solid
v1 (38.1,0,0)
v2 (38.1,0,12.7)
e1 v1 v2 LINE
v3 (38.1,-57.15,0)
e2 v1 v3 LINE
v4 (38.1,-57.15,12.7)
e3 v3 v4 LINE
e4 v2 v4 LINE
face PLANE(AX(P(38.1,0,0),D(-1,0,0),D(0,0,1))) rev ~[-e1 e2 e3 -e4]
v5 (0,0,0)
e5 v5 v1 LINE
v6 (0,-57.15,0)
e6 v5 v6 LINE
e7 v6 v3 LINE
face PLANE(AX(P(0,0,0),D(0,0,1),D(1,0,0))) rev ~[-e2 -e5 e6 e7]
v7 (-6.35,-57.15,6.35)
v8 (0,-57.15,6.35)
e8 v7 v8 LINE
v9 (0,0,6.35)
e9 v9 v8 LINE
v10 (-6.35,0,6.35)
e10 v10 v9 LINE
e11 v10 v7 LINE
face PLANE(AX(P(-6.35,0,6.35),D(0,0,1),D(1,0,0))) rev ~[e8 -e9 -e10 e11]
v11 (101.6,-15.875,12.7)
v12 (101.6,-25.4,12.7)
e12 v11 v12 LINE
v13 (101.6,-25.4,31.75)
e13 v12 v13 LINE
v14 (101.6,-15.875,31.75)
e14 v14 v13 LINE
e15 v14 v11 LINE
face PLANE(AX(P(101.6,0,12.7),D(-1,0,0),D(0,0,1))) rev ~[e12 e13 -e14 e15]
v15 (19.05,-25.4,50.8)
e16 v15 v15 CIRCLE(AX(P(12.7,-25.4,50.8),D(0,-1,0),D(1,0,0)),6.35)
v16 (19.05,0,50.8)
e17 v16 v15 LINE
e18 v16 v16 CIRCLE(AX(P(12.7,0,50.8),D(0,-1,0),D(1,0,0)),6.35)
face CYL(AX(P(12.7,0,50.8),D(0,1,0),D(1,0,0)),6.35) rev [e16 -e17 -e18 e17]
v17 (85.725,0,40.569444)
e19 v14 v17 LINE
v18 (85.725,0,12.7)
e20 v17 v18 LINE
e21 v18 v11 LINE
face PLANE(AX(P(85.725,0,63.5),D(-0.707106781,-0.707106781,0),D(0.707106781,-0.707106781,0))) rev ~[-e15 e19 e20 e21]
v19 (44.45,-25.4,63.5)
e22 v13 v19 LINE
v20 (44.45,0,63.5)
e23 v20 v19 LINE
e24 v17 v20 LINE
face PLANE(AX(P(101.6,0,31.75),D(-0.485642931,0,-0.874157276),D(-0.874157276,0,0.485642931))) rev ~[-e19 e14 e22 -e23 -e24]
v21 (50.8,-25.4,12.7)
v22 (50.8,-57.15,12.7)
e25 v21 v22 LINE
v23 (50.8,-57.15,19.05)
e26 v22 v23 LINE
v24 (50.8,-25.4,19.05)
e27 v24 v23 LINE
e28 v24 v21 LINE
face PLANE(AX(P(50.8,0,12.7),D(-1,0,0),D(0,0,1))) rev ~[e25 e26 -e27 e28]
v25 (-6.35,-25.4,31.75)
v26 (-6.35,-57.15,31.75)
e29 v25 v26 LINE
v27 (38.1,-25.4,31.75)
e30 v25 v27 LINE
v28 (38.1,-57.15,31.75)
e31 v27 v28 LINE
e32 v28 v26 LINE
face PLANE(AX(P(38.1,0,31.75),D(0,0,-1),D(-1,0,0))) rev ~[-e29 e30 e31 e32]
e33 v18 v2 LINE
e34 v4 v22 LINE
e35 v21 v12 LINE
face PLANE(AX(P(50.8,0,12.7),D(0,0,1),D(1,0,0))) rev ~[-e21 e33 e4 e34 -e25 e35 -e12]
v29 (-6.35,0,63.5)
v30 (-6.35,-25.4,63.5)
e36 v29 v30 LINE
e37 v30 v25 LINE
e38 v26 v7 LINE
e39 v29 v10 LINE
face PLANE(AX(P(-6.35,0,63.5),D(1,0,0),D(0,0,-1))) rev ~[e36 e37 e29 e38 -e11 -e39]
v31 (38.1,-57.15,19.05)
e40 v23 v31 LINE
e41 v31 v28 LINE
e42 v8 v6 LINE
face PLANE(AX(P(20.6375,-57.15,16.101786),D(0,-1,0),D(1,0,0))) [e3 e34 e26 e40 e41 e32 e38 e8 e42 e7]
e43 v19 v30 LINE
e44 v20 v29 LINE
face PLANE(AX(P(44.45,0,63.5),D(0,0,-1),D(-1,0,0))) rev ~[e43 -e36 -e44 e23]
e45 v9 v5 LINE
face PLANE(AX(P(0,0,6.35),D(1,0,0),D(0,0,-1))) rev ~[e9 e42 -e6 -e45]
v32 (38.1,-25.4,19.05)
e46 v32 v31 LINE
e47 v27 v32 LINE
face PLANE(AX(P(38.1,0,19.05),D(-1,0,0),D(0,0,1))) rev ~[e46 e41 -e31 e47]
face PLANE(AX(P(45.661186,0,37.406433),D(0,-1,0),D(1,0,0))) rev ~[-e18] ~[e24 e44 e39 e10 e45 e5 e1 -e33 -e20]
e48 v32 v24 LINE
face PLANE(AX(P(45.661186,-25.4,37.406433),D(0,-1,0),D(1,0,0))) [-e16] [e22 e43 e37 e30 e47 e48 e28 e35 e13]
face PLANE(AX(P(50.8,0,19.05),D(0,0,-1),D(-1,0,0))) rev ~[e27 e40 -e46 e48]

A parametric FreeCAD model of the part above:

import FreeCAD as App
import Part
import Sketcher
from FreeCAD import Vector
Q = App.Units.Quantity


def add_polygon(sketch, points):
    """Adds a closed chain of lines whose ends are joined by coincident constraints."""
    first, n = sketch.GeometryCount, len(points)
    for a, b in zip(points, points[1:] + points[:1]):
        sketch.addGeometry(Part.LineSegment(App.Vector(*a, 0), App.Vector(*b, 0)), False)
    for i in range(n):
        sketch.addConstraint(Sketcher.Constraint("Coincident", first + i, 2, first + (i + 1) % n, 1))

doc = App.newDocument("Part")
body = doc.addObject("PartDesign::Body", "Body")

sketch1 = body.newObject("Sketcher::SketchObject", "Sketch")
sketch1.AttachmentSupport = (doc.getObject("XZ_Plane"), [""])
sketch1.MapMode = "FlatFace"
add_polygon(sketch1, [(0, 6), (0, 0), (38, 0), (38, 13), (51, 13), (51, 19), (38, 19), (38, 32), (-6, 32), (-6, 6)])
sketch1.addConstraint(Sketcher.Constraint("Vertical", 0))
sketch1.addConstraint(Sketcher.Constraint("Horizontal", 1))
sketch1.addConstraint(Sketcher.Constraint("Vertical", 2))
sketch1.addConstraint(Sketcher.Constraint("Horizontal", 3))
sketch1.addConstraint(Sketcher.Constraint("Vertical", 4))
sketch1.addConstraint(Sketcher.Constraint("Horizontal", 5))
sketch1.addConstraint(Sketcher.Constraint("Vertical", 6))
sketch1.addConstraint(Sketcher.Constraint("Horizontal", 7))
sketch1.addConstraint(Sketcher.Constraint("Vertical", 8))
sketch1.addConstraint(Sketcher.Constraint("Horizontal", 9))
sketch1.addConstraint(Sketcher.Constraint("Coincident", 0, 2, -1, 1))
sketch1.addConstraint(Sketcher.Constraint("Vertical", 2, 2, 5, 2))
sketch1.addConstraint(Sketcher.Constraint("Equal", 9, 0))
sketch1.addConstraint(Sketcher.Constraint("Equal", 5, 2))
sketch1.addConstraint(Sketcher.Constraint("Equal", 0, 4))
sketch1.addConstraint(Sketcher.Constraint("Equal", 2, 6))
sketch1.addConstraint(Sketcher.Constraint("DistanceY", 8, 2, 8, 1, Q("1 in")))
sketch1.addConstraint(Sketcher.Constraint("DistanceX", 1, 1, 1, 2, Q("1.5 in")))
sketch1.addConstraint(Sketcher.Constraint("DistanceX", 7, 2, 7, 1, Q("1.75 in")))
pad1 = body.newObject("PartDesign::Pad", "Pad")
pad1.Profile = sketch1
pad1.Length = Q("2.25 in")

sketch2 = body.newObject("Sketcher::SketchObject", "Sketch001")
sketch2.AttachmentSupport = (doc.getObject("XZ_Plane"), [""])
sketch2.MapMode = "FlatFace"
add_polygon(sketch2, [(-6, 64), (-6, 32), (38, 32), (38, 19), (51, 19), (51, 13), (102, 13), (102, 32), (44, 64)])
sketch2.addGeometry(Part.Circle(Vector(13, 51, 0), Vector(0, 0, 1), 6), False)
sketch2.addConstraint(Sketcher.Constraint("Vertical", 0))
sketch2.addConstraint(Sketcher.Constraint("Horizontal", 1))
sketch2.addConstraint(Sketcher.Constraint("Vertical", 2))
sketch2.addConstraint(Sketcher.Constraint("Horizontal", 3))
sketch2.addConstraint(Sketcher.Constraint("Vertical", 4))
sketch2.addConstraint(Sketcher.Constraint("Horizontal", 5))
sketch2.addConstraint(Sketcher.Constraint("Vertical", 6))
sketch2.addConstraint(Sketcher.Constraint("Horizontal", 8))
sketch2.addConstraint(Sketcher.Constraint("Horizontal", 1, 2, 6, 2))
sketch2.addConstraint(Sketcher.Constraint("Equal", 5, 8))
sketch2.addConstraint(Sketcher.Constraint("Equal", 3, 2))
sketch2.addConstraint(Sketcher.Constraint("Diameter", 9, Q("0.5 in")))
sketch2.addConstraint(Sketcher.Constraint("DistanceX", 5, 1, 5, 2, Q("2 in")))
sketch2.addConstraint(Sketcher.Constraint("DistanceX", 3, 1, 3, 2, Q("0.5 in")))
sketch2.addConstraint(Sketcher.Constraint("DistanceY", -1, 1, 9, 3, Q("2 in")))
sketch2.addConstraint(Sketcher.Constraint("DistanceX", -1, 1, 3, 2, Q("2 in")))
sketch2.addConstraint(Sketcher.Constraint("DistanceX", 9, 3, 1, 2, Q("1 in")))
sketch2.addConstraint(Sketcher.Constraint("DistanceY", 4, 2, 7, 2, Q("2 in")))
sketch2.addConstraint(Sketcher.Constraint("DistanceX", 1, 1, 1, 2, Q("1.75 in")))
sketch2.addConstraint(Sketcher.Constraint("DistanceY", 0, 2, 0, 1, Q("1.25 in")))
sketch2.addConstraint(Sketcher.Constraint("DistanceY", -1, 1, 4, 2, Q("0.5 in")))
pad2 = body.newObject("PartDesign::Pad", "Pad001")
pad2.Profile = sketch2
pad2.Length = Q("1 in")

sketch3 = body.newObject("Sketcher::SketchObject", "Sketch002")
sketch3.AttachmentSupport = (doc.getObject("XY_Plane"), [""])
sketch3.MapMode = "FlatFace"
sketch3.AttachmentOffset = App.Placement(Vector(0, 0, 2.5 * 25.4), App.Rotation())
add_polygon(sketch3, [(102, 0), (86, 0), (102, -16)])
sketch3.addConstraint(Sketcher.Constraint("Horizontal", 0))
sketch3.addConstraint(Sketcher.Constraint("Vertical", 2))
sketch3.addConstraint(Sketcher.Constraint("PointOnObject", 0, 2, -1))
sketch3.addConstraint(Sketcher.Constraint("Equal", 0, 2))
sketch3.addConstraint(Sketcher.Constraint("DistanceX", -1, 1, 1, 2, Q("4 in")))
sketch3.addConstraint(Sketcher.Constraint("DistanceX", 0, 2, 0, 1, Q("0.625 in")))
pocket1 = body.newObject("PartDesign::Pocket", "Pocket")
pocket1.Profile = sketch3
pocket1.Type = "ThroughAll"

doc.recompute()
